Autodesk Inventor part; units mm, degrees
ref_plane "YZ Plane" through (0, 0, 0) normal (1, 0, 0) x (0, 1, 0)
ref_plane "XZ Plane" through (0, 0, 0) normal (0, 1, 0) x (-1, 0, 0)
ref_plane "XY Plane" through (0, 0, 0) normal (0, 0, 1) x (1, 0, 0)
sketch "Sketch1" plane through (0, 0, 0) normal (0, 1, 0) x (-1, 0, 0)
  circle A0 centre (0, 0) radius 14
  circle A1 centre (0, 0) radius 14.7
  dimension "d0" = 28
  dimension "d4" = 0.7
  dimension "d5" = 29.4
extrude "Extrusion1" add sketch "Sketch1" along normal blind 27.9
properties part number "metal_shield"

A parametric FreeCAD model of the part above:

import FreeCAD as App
import Part
import Sketcher
Q = App.Units.Quantity

doc = App.newDocument("Part")
body = doc.addObject("PartDesign::Body", "Body")

# Sketch on XZ plane
sketch1 = body.newObject("Sketcher::SketchObject", "Sketch")
sketch1.AttachmentSupport = (doc.getObject("XZ_Plane"), [""])
sketch1.MapMode = "FlatFace"
sketch1.addGeometry(Part.Circle(App.Vector(0, 0, 0), App.Vector(0, 0, 1), 15), False)
sketch1.addGeometry(Part.Circle(App.Vector(0, 0, 0), App.Vector(0, 0, 1), 14), False)
sketch1.addConstraint(Sketcher.Constraint("Coincident", 0, 3, -1, 1))
sketch1.addConstraint(Sketcher.Constraint("Coincident", 1, 3, -1, 1))
sketch1.addConstraint(Sketcher.Constraint("Diameter", 1, Q("28 mm")))
sketch1.addConstraint(Sketcher.Constraint("Diameter", 0, Q("29.4 mm")))
pad1 = body.newObject("PartDesign::Pad", "Pad")
pad1.Profile = sketch1
pad1.Length = 27.9
pad1.Reversed = True

doc.recompute()
